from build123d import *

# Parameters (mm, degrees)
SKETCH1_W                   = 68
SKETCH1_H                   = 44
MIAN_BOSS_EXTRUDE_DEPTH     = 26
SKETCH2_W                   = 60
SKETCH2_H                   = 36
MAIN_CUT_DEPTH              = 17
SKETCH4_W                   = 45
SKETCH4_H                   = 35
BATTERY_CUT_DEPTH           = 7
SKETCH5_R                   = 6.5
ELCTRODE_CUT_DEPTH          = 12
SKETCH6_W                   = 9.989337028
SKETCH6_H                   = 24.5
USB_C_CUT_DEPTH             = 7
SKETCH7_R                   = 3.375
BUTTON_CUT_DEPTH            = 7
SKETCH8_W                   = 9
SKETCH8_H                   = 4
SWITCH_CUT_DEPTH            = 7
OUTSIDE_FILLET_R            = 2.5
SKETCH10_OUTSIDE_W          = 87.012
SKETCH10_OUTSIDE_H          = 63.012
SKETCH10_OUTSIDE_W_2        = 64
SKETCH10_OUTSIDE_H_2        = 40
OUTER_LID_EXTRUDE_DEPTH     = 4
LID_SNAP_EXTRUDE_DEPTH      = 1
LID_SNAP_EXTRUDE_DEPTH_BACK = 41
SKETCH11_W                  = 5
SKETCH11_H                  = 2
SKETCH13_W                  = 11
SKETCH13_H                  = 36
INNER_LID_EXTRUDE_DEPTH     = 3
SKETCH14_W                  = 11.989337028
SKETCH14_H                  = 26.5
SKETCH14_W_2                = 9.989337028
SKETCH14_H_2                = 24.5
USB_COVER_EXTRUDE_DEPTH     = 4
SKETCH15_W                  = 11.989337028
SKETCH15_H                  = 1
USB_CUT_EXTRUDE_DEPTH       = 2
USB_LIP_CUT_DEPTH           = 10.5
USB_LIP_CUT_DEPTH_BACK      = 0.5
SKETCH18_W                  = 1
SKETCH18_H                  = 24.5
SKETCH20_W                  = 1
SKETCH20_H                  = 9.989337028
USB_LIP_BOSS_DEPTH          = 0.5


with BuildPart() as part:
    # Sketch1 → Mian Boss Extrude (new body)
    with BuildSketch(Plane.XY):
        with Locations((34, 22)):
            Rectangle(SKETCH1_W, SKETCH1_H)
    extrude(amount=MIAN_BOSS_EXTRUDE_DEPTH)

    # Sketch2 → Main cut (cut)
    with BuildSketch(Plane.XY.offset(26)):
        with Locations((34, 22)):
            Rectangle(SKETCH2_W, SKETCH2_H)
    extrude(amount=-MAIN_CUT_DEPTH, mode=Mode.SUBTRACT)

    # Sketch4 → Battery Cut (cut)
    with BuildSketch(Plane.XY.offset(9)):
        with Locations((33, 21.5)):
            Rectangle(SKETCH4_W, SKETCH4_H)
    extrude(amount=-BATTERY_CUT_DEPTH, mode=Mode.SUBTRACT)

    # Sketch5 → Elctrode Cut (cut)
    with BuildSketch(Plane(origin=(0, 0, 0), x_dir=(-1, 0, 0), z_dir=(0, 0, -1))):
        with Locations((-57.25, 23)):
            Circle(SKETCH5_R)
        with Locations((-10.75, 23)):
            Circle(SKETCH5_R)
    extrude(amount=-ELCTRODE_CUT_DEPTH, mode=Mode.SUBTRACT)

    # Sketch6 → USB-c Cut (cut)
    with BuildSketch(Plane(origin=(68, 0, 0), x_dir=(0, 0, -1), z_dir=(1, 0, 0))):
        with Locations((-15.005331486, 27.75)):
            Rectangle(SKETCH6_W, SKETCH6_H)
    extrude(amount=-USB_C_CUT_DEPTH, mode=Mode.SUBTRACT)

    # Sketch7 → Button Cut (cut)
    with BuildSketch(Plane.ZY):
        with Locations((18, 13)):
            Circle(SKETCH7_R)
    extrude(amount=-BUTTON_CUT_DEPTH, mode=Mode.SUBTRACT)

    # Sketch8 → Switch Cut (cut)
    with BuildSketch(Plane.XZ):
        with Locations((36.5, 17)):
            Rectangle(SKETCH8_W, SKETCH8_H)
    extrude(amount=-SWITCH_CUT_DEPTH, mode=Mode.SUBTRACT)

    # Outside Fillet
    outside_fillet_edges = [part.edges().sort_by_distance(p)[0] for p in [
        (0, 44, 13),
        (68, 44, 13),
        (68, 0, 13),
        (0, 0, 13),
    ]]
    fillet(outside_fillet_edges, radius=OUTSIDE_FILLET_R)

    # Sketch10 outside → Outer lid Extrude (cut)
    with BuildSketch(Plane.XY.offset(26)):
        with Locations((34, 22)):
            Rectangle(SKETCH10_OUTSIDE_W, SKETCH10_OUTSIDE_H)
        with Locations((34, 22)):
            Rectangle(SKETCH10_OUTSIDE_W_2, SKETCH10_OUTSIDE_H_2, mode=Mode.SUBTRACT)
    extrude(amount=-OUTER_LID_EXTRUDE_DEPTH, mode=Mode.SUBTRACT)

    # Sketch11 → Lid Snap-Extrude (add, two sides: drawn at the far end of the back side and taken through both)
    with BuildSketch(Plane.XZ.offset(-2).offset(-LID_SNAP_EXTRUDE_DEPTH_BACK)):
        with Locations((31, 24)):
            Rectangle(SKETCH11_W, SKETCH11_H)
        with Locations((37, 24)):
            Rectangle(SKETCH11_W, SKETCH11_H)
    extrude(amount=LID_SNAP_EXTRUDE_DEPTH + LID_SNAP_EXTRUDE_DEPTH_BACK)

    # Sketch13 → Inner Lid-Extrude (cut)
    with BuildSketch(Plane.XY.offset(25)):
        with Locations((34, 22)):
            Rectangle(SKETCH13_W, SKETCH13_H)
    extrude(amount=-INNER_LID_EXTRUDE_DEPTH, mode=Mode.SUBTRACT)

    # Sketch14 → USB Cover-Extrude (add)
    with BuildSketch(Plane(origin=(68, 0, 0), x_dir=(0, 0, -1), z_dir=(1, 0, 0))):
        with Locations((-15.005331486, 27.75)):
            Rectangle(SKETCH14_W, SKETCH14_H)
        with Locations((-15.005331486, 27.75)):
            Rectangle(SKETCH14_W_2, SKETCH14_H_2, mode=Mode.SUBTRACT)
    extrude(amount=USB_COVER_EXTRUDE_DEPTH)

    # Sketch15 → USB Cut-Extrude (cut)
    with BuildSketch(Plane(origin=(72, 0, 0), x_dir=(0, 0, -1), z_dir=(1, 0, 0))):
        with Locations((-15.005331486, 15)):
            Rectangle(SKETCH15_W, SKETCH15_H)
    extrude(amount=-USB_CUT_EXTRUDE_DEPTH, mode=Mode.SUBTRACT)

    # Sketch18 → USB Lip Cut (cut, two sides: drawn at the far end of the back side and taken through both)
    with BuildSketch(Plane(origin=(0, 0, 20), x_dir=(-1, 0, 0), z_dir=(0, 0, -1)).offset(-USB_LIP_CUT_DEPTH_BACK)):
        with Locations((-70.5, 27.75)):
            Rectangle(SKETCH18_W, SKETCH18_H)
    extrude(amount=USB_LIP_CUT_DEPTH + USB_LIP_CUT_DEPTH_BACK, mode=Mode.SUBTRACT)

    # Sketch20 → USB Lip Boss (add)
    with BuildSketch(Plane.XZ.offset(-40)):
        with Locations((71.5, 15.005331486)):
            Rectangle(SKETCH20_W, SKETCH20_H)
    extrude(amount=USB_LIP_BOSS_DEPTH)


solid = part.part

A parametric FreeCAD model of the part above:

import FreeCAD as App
import Part
import Sketcher
from FreeCAD import Vector


def edges_at(feature, points):
    """Names of the edges that pass closest to the given points."""
    edges = feature.Shape.Edges
    near = lambda p: min(range(len(edges)), key=lambda i: edges[i].distToShape(Part.Vertex(*p))[0])
    return sorted({f"Edge{near(p) + 1}" for p in points})

doc = App.newDocument("Part")
body = doc.addObject("PartDesign::Body", "Body")

sketch1 = doc.addObject("Sketcher::SketchObject", "Sketch")
body.addObject(sketch1)
sketch1.AttachmentSupport = (doc.XY_Plane, [""])
sketch1.MapMode = "FlatFace"
sketch1.addGeometry([
    Part.LineSegment(Vector(0, 44, 0), Vector(0, 0, 0)),
    Part.LineSegment(Vector(0, 0, 0), Vector(68, 0, 0)),
    Part.LineSegment(Vector(68, 0, 0), Vector(68, 44, 0)),
    Part.LineSegment(Vector(68, 44, 0), Vector(0, 44, 0)),
], False)
sketch1.addConstraint([
    Sketcher.Constraint("Coincident", 0, 2, 1, 1),
    Sketcher.Constraint("Coincident", 1, 2, 2, 1),
    Sketcher.Constraint("Coincident", 2, 2, 3, 1),
    Sketcher.Constraint("Coincident", 3, 2, 0, 1),
    Sketcher.Constraint("Vertical", 0),
    Sketcher.Constraint("Horizontal", 1),
    Sketcher.Constraint("Vertical", 2),
    Sketcher.Constraint("Horizontal", 3),
    Sketcher.Constraint("Coincident", 0, 2, -1, 1),
    Sketcher.Constraint("DistanceX", 1, 1, 1, 2, 68.0),
    Sketcher.Constraint("DistanceY", 0, 2, 0, 1, 44.0),
])
pad1 = doc.addObject("PartDesign::Pad", "Pad")
body.addObject(pad1)
pad1.Profile = sketch1
pad1.Length = 26

sketch2 = doc.addObject("Sketcher::SketchObject", "Sketch001")
body.addObject(sketch2)
sketch2.AttachmentSupport = (doc.XY_Plane, [""])
sketch2.MapMode = "FlatFace"
sketch2.AttachmentOffset = App.Placement(Vector(0, 0, 26), App.Rotation())
sketch2.addGeometry([
    Part.LineSegment(Vector(4, 40, 0), Vector(4, 4, 0)),
    Part.LineSegment(Vector(4, 4, 0), Vector(64, 4, 0)),
    Part.LineSegment(Vector(64, 4, 0), Vector(64, 40, 0)),
    Part.LineSegment(Vector(64, 40, 0), Vector(4, 40, 0)),
], False)
sketch2.addConstraint([
    Sketcher.Constraint("Coincident", 0, 2, 1, 1),
    Sketcher.Constraint("Coincident", 1, 2, 2, 1),
    Sketcher.Constraint("Coincident", 2, 2, 3, 1),
    Sketcher.Constraint("Coincident", 3, 2, 0, 1),
    Sketcher.Constraint("Vertical", 0),
    Sketcher.Constraint("Horizontal", 1),
    Sketcher.Constraint("Vertical", 2),
    Sketcher.Constraint("Horizontal", 3),
    Sketcher.Constraint("DistanceX", 1, 1, 1, 2, 60.0),
    Sketcher.Constraint("DistanceY", 0, 2, 0, 1, 36.0),
    Sketcher.Constraint("DistanceX", -1, 1, 0, 2, 4.0),
    Sketcher.Constraint("DistanceY", -1, 1, 0, 2, 4.0),
])
pocket1 = doc.addObject("PartDesign::Pocket", "Pocket")
body.addObject(pocket1)
pocket1.Profile = sketch2
pocket1.Length = 17

sketch3 = doc.addObject("Sketcher::SketchObject", "Sketch002")
body.addObject(sketch3)
sketch3.AttachmentSupport = (doc.XY_Plane, [""])
sketch3.MapMode = "FlatFace"
sketch3.AttachmentOffset = App.Placement(Vector(0, 0, 9), App.Rotation())
sketch3.addGeometry([
    Part.LineSegment(Vector(10.5, 39, 0), Vector(10.5, 4, 0)),
    Part.LineSegment(Vector(10.5, 4, 0), Vector(55.5, 4, 0)),
    Part.LineSegment(Vector(55.5, 4, 0), Vector(55.5, 39, 0)),
    Part.LineSegment(Vector(55.5, 39, 0), Vector(10.5, 39, 0)),
], False)
sketch3.addConstraint([
    Sketcher.Constraint("Coincident", 0, 2, 1, 1),
    Sketcher.Constraint("Coincident", 1, 2, 2, 1),
    Sketcher.Constraint("Coincident", 2, 2, 3, 1),
    Sketcher.Constraint("Coincident", 3, 2, 0, 1),
    Sketcher.Constraint("Vertical", 0),
    Sketcher.Constraint("Horizontal", 1),
    Sketcher.Constraint("Vertical", 2),
    Sketcher.Constraint("Horizontal", 3),
    Sketcher.Constraint("DistanceX", 1, 1, 1, 2, 45.0),
    Sketcher.Constraint("DistanceY", 0, 2, 0, 1, 35.0),
    Sketcher.Constraint("DistanceY", -1, 1, 0, 2, 4.0),
    Sketcher.Constraint("DistanceX", -1, 1, 0, 2, 10.5),
])
pocket2 = doc.addObject("PartDesign::Pocket", "Pocket001")
body.addObject(pocket2)
pocket2.Profile = sketch3
pocket2.Length = 7

sketch4 = doc.addObject("Sketcher::SketchObject", "Sketch003")
body.addObject(sketch4)
sketch4.AttachmentSupport = (doc.XY_Plane, [""])
sketch4.MapMode = "FlatFace"
sketch4.addGeometry([
    Part.Circle(Vector(57.25, 23, 0), Vector(0, 0, 1), 6.5),
    Part.Circle(Vector(10.75, 23, 0), Vector(0, 0, 1), 6.5),
], False)
sketch4.addConstraint([
    Sketcher.Constraint("Equal", 0, 1),
    Sketcher.Constraint("Horizontal", 0, 3, 1, 3),
    Sketcher.Constraint("Diameter", 0, 13.0),
    Sketcher.Constraint("DistanceY", -1, 1, 0, 3, 23.0),
    Sketcher.Constraint("DistanceX", 1, 3, 0, 3, 46.5),
    Sketcher.Constraint("DistanceX", -1, 1, 0, 3, 57.25),
])
pocket3 = doc.addObject("PartDesign::Pocket", "Pocket002")
body.addObject(pocket3)
pocket3.Profile = sketch4
pocket3.Length = 12
pocket3.Reversed = True

sketch5 = doc.addObject("Sketcher::SketchObject", "Sketch004")
body.addObject(sketch5)
sketch5.AttachmentSupport = (doc.YZ_Plane, [""])
sketch5.MapMode = "FlatFace"
sketch5.AttachmentOffset = App.Placement(Vector(0, 0, 68), App.Rotation())
sketch5.addGeometry([
    Part.LineSegment(Vector(40, 20, 0), Vector(15.5, 20, 0)),
    Part.LineSegment(Vector(15.5, 20, 0), Vector(15.5, 10.010663, 0)),
    Part.LineSegment(Vector(15.5, 10.010663, 0), Vector(40, 10.010663, 0)),
    Part.LineSegment(Vector(40, 10.010663, 0), Vector(40, 20, 0)),
], False)
sketch5.addConstraint([
    Sketcher.Constraint("Coincident", 0, 2, 1, 1),
    Sketcher.Constraint("Coincident", 1, 2, 2, 1),
    Sketcher.Constraint("Coincident", 2, 2, 3, 1),
    Sketcher.Constraint("Coincident", 3, 2, 0, 1),
    Sketcher.Constraint("Horizontal", 0),
    Sketcher.Constraint("Vertical", 1),
    Sketcher.Constraint("Horizontal", 2),
    Sketcher.Constraint("Vertical", 3),
    Sketcher.Constraint("DistanceX", 0, 2, 0, 1, 24.5),
    Sketcher.Constraint("DistanceY", -1, 1, 0, 2, 20.0),
    Sketcher.Constraint("DistanceX", -1, 1, 2, 2, 40.0),
    Sketcher.Constraint("DistanceY", 1, 2, 1, 1, 9.989337),
])
pocket4 = doc.addObject("PartDesign::Pocket", "Pocket003")
body.addObject(pocket4)
pocket4.Profile = sketch5
pocket4.Length = 7

sketch6 = doc.addObject("Sketcher::SketchObject", "Sketch005")
body.addObject(sketch6)
sketch6.AttachmentSupport = (doc.YZ_Plane, [""])
sketch6.MapMode = "FlatFace"
sketch6.addGeometry(Part.Circle(Vector(13, 18, 0), Vector(0, 0, 1), 3.375), False)
sketch6.addConstraint([
    Sketcher.Constraint("Diameter", 0, 6.75),
    Sketcher.Constraint("DistanceX", -1, 1, 0, 3, 13.0),
    Sketcher.Constraint("DistanceY", -1, 1, 0, 3, 18.0),
])
pocket5 = doc.addObject("PartDesign::Pocket", "Pocket004")
body.addObject(pocket5)
pocket5.Profile = sketch6
pocket5.Length = 7
pocket5.Reversed = True

sketch7 = doc.addObject("Sketcher::SketchObject", "Sketch006")
body.addObject(sketch7)
sketch7.AttachmentSupport = (doc.XZ_Plane, [""])
sketch7.MapMode = "FlatFace"
sketch7.addGeometry([
    Part.LineSegment(Vector(32, 19, 0), Vector(32, 15, 0)),
    Part.LineSegment(Vector(32, 15, 0), Vector(41, 15, 0)),
    Part.LineSegment(Vector(41, 15, 0), Vector(41, 19, 0)),
    Part.LineSegment(Vector(41, 19, 0), Vector(32, 19, 0)),
], False)
sketch7.addConstraint([
    Sketcher.Constraint("Coincident", 0, 2, 1, 1),
    Sketcher.Constraint("Coincident", 1, 2, 2, 1),
    Sketcher.Constraint("Coincident", 2, 2, 3, 1),
    Sketcher.Constraint("Coincident", 3, 2, 0, 1),
    Sketcher.Constraint("Vertical", 0),
    Sketcher.Constraint("Horizontal", 1),
    Sketcher.Constraint("Vertical", 2),
    Sketcher.Constraint("Horizontal", 3),
    Sketcher.Constraint("DistanceX", 1, 1, 1, 2, 9.0),
    Sketcher.Constraint("DistanceY", 0, 2, 0, 1, 4.0),
    Sketcher.Constraint("DistanceX", -1, 1, 0, 2, 32.0),
    Sketcher.Constraint("DistanceY", -1, 1, 0, 2, 15.0),
])
pocket6 = doc.addObject("PartDesign::Pocket", "Pocket005")
body.addObject(pocket6)
pocket6.Profile = sketch7
pocket6.Length = 7
doc.recompute()

fillet = doc.addObject("PartDesign::Fillet", "Fillet")
body.addObject(fillet)
fillet.Base = (pocket6, edges_at(pocket6, [
    (0, 44, 13),
    (68, 44, 13),
    (68, 0, 13),
    (0, 0, 13),
]))
fillet.Radius = 2.5

sketch8 = doc.addObject("Sketcher::SketchObject", "Sketch007")
body.addObject(sketch8)
sketch8.AttachmentSupport = (doc.XY_Plane, [""])
sketch8.MapMode = "FlatFace"
sketch8.AttachmentOffset = App.Placement(Vector(0, 0, 26), App.Rotation())
sketch8.addGeometry([
    Part.LineSegment(Vector(-9.506, 53.506, 0), Vector(-9.506, -9.506, 0)),
    Part.LineSegment(Vector(-9.506, -9.506, 0), Vector(77.506, -9.506, 0)),
    Part.LineSegment(Vector(77.506, -9.506, 0), Vector(77.506, 53.506, 0)),
    Part.LineSegment(Vector(77.506, 53.506, 0), Vector(-9.506, 53.506, 0)),
    Part.LineSegment(Vector(66, 2, 0), Vector(2, 2, 0)),
    Part.LineSegment(Vector(2, 2, 0), Vector(2, 42, 0)),
    Part.LineSegment(Vector(2, 42, 0), Vector(66, 42, 0)),
    Part.LineSegment(Vector(66, 42, 0), Vector(66, 2, 0)),
], False)
sketch8.addConstraint([
    Sketcher.Constraint("Coincident", 0, 2, 1, 1),
    Sketcher.Constraint("Coincident", 1, 2, 2, 1),
    Sketcher.Constraint("Coincident", 2, 2, 3, 1),
    Sketcher.Constraint("Coincident", 3, 2, 0, 1),
    Sketcher.Constraint("Coincident", 4, 2, 5, 1),
    Sketcher.Constraint("Coincident", 5, 2, 6, 1),
    Sketcher.Constraint("Coincident", 6, 2, 7, 1),
    Sketcher.Constraint("Coincident", 7, 2, 4, 1),
    Sketcher.Constraint("Vertical", 0),
    Sketcher.Constraint("Horizontal", 1),
    Sketcher.Constraint("Vertical", 2),
    Sketcher.Constraint("Horizontal", 3),
    Sketcher.Constraint("Horizontal", 4),
    Sketcher.Constraint("Vertical", 5),
    Sketcher.Constraint("Horizontal", 6),
    Sketcher.Constraint("Vertical", 7),
    Sketcher.Constraint("DistanceX", 4, 2, 4, 1, 64.0),
    Sketcher.Constraint("DistanceY", 5, 1, 5, 2, 40.0),
    Sketcher.Constraint("DistanceX", -1, 1, 4, 2, 2.0),
    Sketcher.Constraint("DistanceY", -1, 1, 4, 2, 2.0),
    Sketcher.Constraint("DistanceX", 1, 1, 1, 2, 87.012),
    Sketcher.Constraint("DistanceY", 0, 2, 0, 1, 63.012),
    Sketcher.Constraint("DistanceX", 0, 2, -1, 1, 9.506),
    Sketcher.Constraint("DistanceY", 0, 2, -1, 1, 9.506),
])
pocket7 = doc.addObject("PartDesign::Pocket", "Pocket006")
body.addObject(pocket7)
pocket7.Profile = sketch8
pocket7.Length = 4

sketch9 = doc.addObject("Sketcher::SketchObject", "Sketch008")
body.addObject(sketch9)
sketch9.AttachmentSupport = (doc.XZ_Plane, [""])
sketch9.MapMode = "FlatFace"
sketch9.AttachmentOffset = App.Placement(Vector(0, 0, -2), App.Rotation())
sketch9.addGeometry([
    Part.LineSegment(Vector(28.5, 25, 0), Vector(28.5, 23, 0)),
    Part.LineSegment(Vector(28.5, 23, 0), Vector(33.5, 23, 0)),
    Part.LineSegment(Vector(33.5, 23, 0), Vector(33.5, 25, 0)),
    Part.LineSegment(Vector(33.5, 25, 0), Vector(28.5, 25, 0)),
    Part.LineSegment(Vector(34.5, 25, 0), Vector(34.5, 23, 0)),
    Part.LineSegment(Vector(34.5, 23, 0), Vector(39.5, 23, 0)),
    Part.LineSegment(Vector(39.5, 23, 0), Vector(39.5, 25, 0)),
    Part.LineSegment(Vector(39.5, 25, 0), Vector(34.5, 25, 0)),
], False)
sketch9.addConstraint([
    Sketcher.Constraint("Coincident", 0, 2, 1, 1),
    Sketcher.Constraint("Coincident", 1, 2, 2, 1),
    Sketcher.Constraint("Coincident", 2, 2, 3, 1),
    Sketcher.Constraint("Coincident", 3, 2, 0, 1),
    Sketcher.Constraint("Coincident", 4, 2, 5, 1),
    Sketcher.Constraint("Coincident", 5, 2, 6, 1),
    Sketcher.Constraint("Coincident", 6, 2, 7, 1),
    Sketcher.Constraint("Coincident", 7, 2, 4, 1),
    Sketcher.Constraint("Vertical", 0),
    Sketcher.Constraint("Horizontal", 1),
    Sketcher.Constraint("Vertical", 2),
    Sketcher.Constraint("Horizontal", 3),
    Sketcher.Constraint("Vertical", 4),
    Sketcher.Constraint("Horizontal", 5),
    Sketcher.Constraint("Vertical", 6),
    Sketcher.Constraint("Horizontal", 7),
    Sketcher.Constraint("Horizontal", 1, 2, 4, 2),
    Sketcher.Constraint("Horizontal", 3, 2, 6, 2),
    Sketcher.Constraint("Equal", 3, 5),
    Sketcher.Constraint("DistanceX", 1, 1, 1, 2, 5.0),
    Sketcher.Constraint("DistanceY", 0, 2, 0, 1, 2.0),
    Sketcher.Constraint("DistanceY", -1, 1, 0, 2, 23.0),
    Sketcher.Constraint("DistanceX", 1, 2, 4, 2, 1.0),
    Sketcher.Constraint("DistanceX", -1, 1, 0, 2, 28.5),
])
pad2 = doc.addObject("PartDesign::Pad", "Pad001")
body.addObject(pad2)
pad2.Profile = sketch9
pad2.Type = "TwoLengths"
pad2.Length = 1
pad2.Length2 = 41

sketch10 = doc.addObject("Sketcher::SketchObject", "Sketch009")
body.addObject(sketch10)
sketch10.AttachmentSupport = (doc.XY_Plane, [""])
sketch10.MapMode = "FlatFace"
sketch10.AttachmentOffset = App.Placement(Vector(0, 0, 25), App.Rotation())
sketch10.addGeometry([
    Part.LineSegment(Vector(28.5, 40, 0), Vector(28.5, 4, 0)),
    Part.LineSegment(Vector(28.5, 4, 0), Vector(39.5, 4, 0)),
    Part.LineSegment(Vector(39.5, 4, 0), Vector(39.5, 40, 0)),
    Part.LineSegment(Vector(39.5, 40, 0), Vector(28.5, 40, 0)),
], False)
sketch10.addConstraint([
    Sketcher.Constraint("Coincident", 0, 2, 1, 1),
    Sketcher.Constraint("Coincident", 1, 2, 2, 1),
    Sketcher.Constraint("Coincident", 2, 2, 3, 1),
    Sketcher.Constraint("Coincident", 3, 2, 0, 1),
    Sketcher.Constraint("Vertical", 0),
    Sketcher.Constraint("Horizontal", 1),
    Sketcher.Constraint("Vertical", 2),
    Sketcher.Constraint("Horizontal", 3),
    Sketcher.Constraint("DistanceX", 1, 1, 1, 2, 11.0),
    Sketcher.Constraint("DistanceY", 0, 2, 0, 1, 36.0),
    Sketcher.Constraint("DistanceY", -1, 1, 0, 2, 4.0),
    Sketcher.Constraint("DistanceX", -1, 1, 0, 2, 28.5),
])
pocket8 = doc.addObject("PartDesign::Pocket", "Pocket007")
body.addObject(pocket8)
pocket8.Profile = sketch10
pocket8.Length = 3

sketch11 = doc.addObject("Sketcher::SketchObject", "Sketch010")
body.addObject(sketch11)
sketch11.AttachmentSupport = (doc.YZ_Plane, [""])
sketch11.MapMode = "FlatFace"
sketch11.AttachmentOffset = App.Placement(Vector(0, 0, 68), App.Rotation())
sketch11.addGeometry([
    Part.LineSegment(Vector(41, 21, 0), Vector(14.5, 21, 0)),
    Part.LineSegment(Vector(14.5, 21, 0), Vector(14.5, 9.010663, 0)),
    Part.LineSegment(Vector(14.5, 9.010663, 0), Vector(41, 9.010663, 0)),
    Part.LineSegment(Vector(41, 9.010663, 0), Vector(41, 21, 0)),
    Part.LineSegment(Vector(15.5, 10.010663, 0), Vector(15.5, 20, 0)),
    Part.LineSegment(Vector(15.5, 20, 0), Vector(40, 20, 0)),
    Part.LineSegment(Vector(40, 20, 0), Vector(40, 10.010663, 0)),
    Part.LineSegment(Vector(40, 10.010663, 0), Vector(15.5, 10.010663, 0)),
], False)
sketch11.addConstraint([
    Sketcher.Constraint("Coincident", 0, 2, 1, 1),
    Sketcher.Constraint("Coincident", 1, 2, 2, 1),
    Sketcher.Constraint("Coincident", 2, 2, 3, 1),
    Sketcher.Constraint("Coincident", 3, 2, 0, 1),
    Sketcher.Constraint("Coincident", 4, 2, 5, 1),
    Sketcher.Constraint("Coincident", 5, 2, 6, 1),
    Sketcher.Constraint("Coincident", 6, 2, 7, 1),
    Sketcher.Constraint("Coincident", 7, 2, 4, 1),
    Sketcher.Constraint("Horizontal", 0),
    Sketcher.Constraint("Vertical", 1),
    Sketcher.Constraint("Horizontal", 2),
    Sketcher.Constraint("Vertical", 3),
    Sketcher.Constraint("Vertical", 4),
    Sketcher.Constraint("Horizontal", 5),
    Sketcher.Constraint("Vertical", 6),
    Sketcher.Constraint("Horizontal", 7),
    Sketcher.Constraint("DistanceX", 0, 2, 0, 1, 26.5),
    Sketcher.Constraint("DistanceX", 5, 1, 5, 2, 24.5),
    Sketcher.Constraint("DistanceY", -1, 1, 0, 2, 21.0),
    Sketcher.Constraint("DistanceX", -1, 1, 2, 2, 41.0),
    Sketcher.Constraint("DistanceY", -1, 1, 4, 2, 20.0),
    Sketcher.Constraint("DistanceX", -1, 1, 5, 2, 40.0),
    Sketcher.Constraint("DistanceY", 2, 2, 6, 2, 1.0),
    Sketcher.Constraint("DistanceY", 1, 2, 1, 1, 11.989337),
])
pad3 = doc.addObject("PartDesign::Pad", "Pad002")
body.addObject(pad3)
pad3.Profile = sketch11
pad3.Length = 4

sketch12 = doc.addObject("Sketcher::SketchObject", "Sketch011")
body.addObject(sketch12)
sketch12.AttachmentSupport = (doc.YZ_Plane, [""])
sketch12.MapMode = "FlatFace"
sketch12.AttachmentOffset = App.Placement(Vector(0, 0, 72), App.Rotation())
sketch12.addGeometry([
    Part.LineSegment(Vector(15.5, 21, 0), Vector(14.5, 21, 0)),
    Part.LineSegment(Vector(14.5, 21, 0), Vector(14.5, 9.010663, 0)),
    Part.LineSegment(Vector(14.5, 9.010663, 0), Vector(15.5, 9.010663, 0)),
    Part.LineSegment(Vector(15.5, 9.010663, 0), Vector(15.5, 21, 0)),
], False)
sketch12.addConstraint([
    Sketcher.Constraint("Coincident", 0, 2, 1, 1),
    Sketcher.Constraint("Coincident", 1, 2, 2, 1),
    Sketcher.Constraint("Coincident", 2, 2, 3, 1),
    Sketcher.Constraint("Coincident", 3, 2, 0, 1),
    Sketcher.Constraint("Horizontal", 0),
    Sketcher.Constraint("Vertical", 1),
    Sketcher.Constraint("Horizontal", 2),
    Sketcher.Constraint("Vertical", 3),
    Sketcher.Constraint("DistanceX", 0, 2, 0, 1, 1.0),
    Sketcher.Constraint("DistanceY", -1, 1, 0, 2, 21.0),
    Sketcher.Constraint("DistanceX", -1, 1, 0, 2, 14.5),
    Sketcher.Constraint("DistanceY", 1, 2, 1, 1, 11.989337),
])
pocket9 = doc.addObject("PartDesign::Pocket", "Pocket008")
body.addObject(pocket9)
pocket9.Profile = sketch12
pocket9.Length = 2

sketch13 = doc.addObject("Sketcher::SketchObject", "Sketch012")
body.addObject(sketch13)
sketch13.AttachmentSupport = (doc.XY_Plane, [""])
sketch13.MapMode = "FlatFace"
sketch13.AttachmentOffset = App.Placement(Vector(0, 0, 20), App.Rotation())
sketch13.addGeometry([
    Part.LineSegment(Vector(71, 40, 0), Vector(71, 15.5, 0)),
    Part.LineSegment(Vector(71, 15.5, 0), Vector(70, 15.5, 0)),
    Part.LineSegment(Vector(70, 15.5, 0), Vector(70, 40, 0)),
    Part.LineSegment(Vector(70, 40, 0), Vector(71, 40, 0)),
], False)
sketch13.addConstraint([
    Sketcher.Constraint("Coincident", 0, 2, 1, 1),
    Sketcher.Constraint("Coincident", 1, 2, 2, 1),
    Sketcher.Constraint("Coincident", 2, 2, 3, 1),
    Sketcher.Constraint("Coincident", 3, 2, 0, 1),
    Sketcher.Constraint("Vertical", 0),
    Sketcher.Constraint("Horizontal", 1),
    Sketcher.Constraint("Vertical", 2),
    Sketcher.Constraint("Horizontal", 3),
    Sketcher.Constraint("DistanceX", 1, 2, 1, 1, 1.0),
    Sketcher.Constraint("DistanceY", 0, 2, 0, 1, 24.5),
    Sketcher.Constraint("DistanceX", -1, 1, 0, 2, 71.0),
    Sketcher.Constraint("DistanceY", -1, 1, 2, 2, 40.0),
])
pocket10 = doc.addObject("PartDesign::Pocket", "Pocket009")
body.addObject(pocket10)
pocket10.Profile = sketch13
pocket10.Type = "TwoLengths"
pocket10.Length = 10.5
pocket10.Length2 = 0.5

sketch14 = doc.addObject("Sketcher::SketchObject", "Sketch013")
body.addObject(sketch14)
sketch14.AttachmentSupport = (doc.XZ_Plane, [""])
sketch14.MapMode = "FlatFace"
sketch14.AttachmentOffset = App.Placement(Vector(0, 0, -40), App.Rotation())
sketch14.addGeometry([
    Part.LineSegment(Vector(71, 20, 0), Vector(71, 10.010663, 0)),
    Part.LineSegment(Vector(71, 10.010663, 0), Vector(72, 10.010663, 0)),
    Part.LineSegment(Vector(72, 10.010663, 0), Vector(72, 20, 0)),
    Part.LineSegment(Vector(72, 20, 0), Vector(71, 20, 0)),
], False)
sketch14.addConstraint([
    Sketcher.Constraint("Coincident", 0, 2, 1, 1),
    Sketcher.Constraint("Coincident", 1, 2, 2, 1),
    Sketcher.Constraint("Coincident", 2, 2, 3, 1),
    Sketcher.Constraint("Coincident", 3, 2, 0, 1),
    Sketcher.Constraint("Vertical", 0),
    Sketcher.Constraint("Horizontal", 1),
    Sketcher.Constraint("Vertical", 2),
    Sketcher.Constraint("Horizontal", 3),
    Sketcher.Constraint("DistanceX", 1, 1, 1, 2, 1.0),
    Sketcher.Constraint("DistanceX", -1, 1, 0, 2, 71.0),
    Sketcher.Constraint("DistanceY", -1, 1, 2, 2, 20.0),
    Sketcher.Constraint("DistanceY", 0, 2, 0, 1, 9.989337),
])
pad4 = doc.addObject("PartDesign::Pad", "Pad003")
body.addObject(pad4)
pad4.Profile = sketch14
pad4.Length = 0.5

doc.recompute()
